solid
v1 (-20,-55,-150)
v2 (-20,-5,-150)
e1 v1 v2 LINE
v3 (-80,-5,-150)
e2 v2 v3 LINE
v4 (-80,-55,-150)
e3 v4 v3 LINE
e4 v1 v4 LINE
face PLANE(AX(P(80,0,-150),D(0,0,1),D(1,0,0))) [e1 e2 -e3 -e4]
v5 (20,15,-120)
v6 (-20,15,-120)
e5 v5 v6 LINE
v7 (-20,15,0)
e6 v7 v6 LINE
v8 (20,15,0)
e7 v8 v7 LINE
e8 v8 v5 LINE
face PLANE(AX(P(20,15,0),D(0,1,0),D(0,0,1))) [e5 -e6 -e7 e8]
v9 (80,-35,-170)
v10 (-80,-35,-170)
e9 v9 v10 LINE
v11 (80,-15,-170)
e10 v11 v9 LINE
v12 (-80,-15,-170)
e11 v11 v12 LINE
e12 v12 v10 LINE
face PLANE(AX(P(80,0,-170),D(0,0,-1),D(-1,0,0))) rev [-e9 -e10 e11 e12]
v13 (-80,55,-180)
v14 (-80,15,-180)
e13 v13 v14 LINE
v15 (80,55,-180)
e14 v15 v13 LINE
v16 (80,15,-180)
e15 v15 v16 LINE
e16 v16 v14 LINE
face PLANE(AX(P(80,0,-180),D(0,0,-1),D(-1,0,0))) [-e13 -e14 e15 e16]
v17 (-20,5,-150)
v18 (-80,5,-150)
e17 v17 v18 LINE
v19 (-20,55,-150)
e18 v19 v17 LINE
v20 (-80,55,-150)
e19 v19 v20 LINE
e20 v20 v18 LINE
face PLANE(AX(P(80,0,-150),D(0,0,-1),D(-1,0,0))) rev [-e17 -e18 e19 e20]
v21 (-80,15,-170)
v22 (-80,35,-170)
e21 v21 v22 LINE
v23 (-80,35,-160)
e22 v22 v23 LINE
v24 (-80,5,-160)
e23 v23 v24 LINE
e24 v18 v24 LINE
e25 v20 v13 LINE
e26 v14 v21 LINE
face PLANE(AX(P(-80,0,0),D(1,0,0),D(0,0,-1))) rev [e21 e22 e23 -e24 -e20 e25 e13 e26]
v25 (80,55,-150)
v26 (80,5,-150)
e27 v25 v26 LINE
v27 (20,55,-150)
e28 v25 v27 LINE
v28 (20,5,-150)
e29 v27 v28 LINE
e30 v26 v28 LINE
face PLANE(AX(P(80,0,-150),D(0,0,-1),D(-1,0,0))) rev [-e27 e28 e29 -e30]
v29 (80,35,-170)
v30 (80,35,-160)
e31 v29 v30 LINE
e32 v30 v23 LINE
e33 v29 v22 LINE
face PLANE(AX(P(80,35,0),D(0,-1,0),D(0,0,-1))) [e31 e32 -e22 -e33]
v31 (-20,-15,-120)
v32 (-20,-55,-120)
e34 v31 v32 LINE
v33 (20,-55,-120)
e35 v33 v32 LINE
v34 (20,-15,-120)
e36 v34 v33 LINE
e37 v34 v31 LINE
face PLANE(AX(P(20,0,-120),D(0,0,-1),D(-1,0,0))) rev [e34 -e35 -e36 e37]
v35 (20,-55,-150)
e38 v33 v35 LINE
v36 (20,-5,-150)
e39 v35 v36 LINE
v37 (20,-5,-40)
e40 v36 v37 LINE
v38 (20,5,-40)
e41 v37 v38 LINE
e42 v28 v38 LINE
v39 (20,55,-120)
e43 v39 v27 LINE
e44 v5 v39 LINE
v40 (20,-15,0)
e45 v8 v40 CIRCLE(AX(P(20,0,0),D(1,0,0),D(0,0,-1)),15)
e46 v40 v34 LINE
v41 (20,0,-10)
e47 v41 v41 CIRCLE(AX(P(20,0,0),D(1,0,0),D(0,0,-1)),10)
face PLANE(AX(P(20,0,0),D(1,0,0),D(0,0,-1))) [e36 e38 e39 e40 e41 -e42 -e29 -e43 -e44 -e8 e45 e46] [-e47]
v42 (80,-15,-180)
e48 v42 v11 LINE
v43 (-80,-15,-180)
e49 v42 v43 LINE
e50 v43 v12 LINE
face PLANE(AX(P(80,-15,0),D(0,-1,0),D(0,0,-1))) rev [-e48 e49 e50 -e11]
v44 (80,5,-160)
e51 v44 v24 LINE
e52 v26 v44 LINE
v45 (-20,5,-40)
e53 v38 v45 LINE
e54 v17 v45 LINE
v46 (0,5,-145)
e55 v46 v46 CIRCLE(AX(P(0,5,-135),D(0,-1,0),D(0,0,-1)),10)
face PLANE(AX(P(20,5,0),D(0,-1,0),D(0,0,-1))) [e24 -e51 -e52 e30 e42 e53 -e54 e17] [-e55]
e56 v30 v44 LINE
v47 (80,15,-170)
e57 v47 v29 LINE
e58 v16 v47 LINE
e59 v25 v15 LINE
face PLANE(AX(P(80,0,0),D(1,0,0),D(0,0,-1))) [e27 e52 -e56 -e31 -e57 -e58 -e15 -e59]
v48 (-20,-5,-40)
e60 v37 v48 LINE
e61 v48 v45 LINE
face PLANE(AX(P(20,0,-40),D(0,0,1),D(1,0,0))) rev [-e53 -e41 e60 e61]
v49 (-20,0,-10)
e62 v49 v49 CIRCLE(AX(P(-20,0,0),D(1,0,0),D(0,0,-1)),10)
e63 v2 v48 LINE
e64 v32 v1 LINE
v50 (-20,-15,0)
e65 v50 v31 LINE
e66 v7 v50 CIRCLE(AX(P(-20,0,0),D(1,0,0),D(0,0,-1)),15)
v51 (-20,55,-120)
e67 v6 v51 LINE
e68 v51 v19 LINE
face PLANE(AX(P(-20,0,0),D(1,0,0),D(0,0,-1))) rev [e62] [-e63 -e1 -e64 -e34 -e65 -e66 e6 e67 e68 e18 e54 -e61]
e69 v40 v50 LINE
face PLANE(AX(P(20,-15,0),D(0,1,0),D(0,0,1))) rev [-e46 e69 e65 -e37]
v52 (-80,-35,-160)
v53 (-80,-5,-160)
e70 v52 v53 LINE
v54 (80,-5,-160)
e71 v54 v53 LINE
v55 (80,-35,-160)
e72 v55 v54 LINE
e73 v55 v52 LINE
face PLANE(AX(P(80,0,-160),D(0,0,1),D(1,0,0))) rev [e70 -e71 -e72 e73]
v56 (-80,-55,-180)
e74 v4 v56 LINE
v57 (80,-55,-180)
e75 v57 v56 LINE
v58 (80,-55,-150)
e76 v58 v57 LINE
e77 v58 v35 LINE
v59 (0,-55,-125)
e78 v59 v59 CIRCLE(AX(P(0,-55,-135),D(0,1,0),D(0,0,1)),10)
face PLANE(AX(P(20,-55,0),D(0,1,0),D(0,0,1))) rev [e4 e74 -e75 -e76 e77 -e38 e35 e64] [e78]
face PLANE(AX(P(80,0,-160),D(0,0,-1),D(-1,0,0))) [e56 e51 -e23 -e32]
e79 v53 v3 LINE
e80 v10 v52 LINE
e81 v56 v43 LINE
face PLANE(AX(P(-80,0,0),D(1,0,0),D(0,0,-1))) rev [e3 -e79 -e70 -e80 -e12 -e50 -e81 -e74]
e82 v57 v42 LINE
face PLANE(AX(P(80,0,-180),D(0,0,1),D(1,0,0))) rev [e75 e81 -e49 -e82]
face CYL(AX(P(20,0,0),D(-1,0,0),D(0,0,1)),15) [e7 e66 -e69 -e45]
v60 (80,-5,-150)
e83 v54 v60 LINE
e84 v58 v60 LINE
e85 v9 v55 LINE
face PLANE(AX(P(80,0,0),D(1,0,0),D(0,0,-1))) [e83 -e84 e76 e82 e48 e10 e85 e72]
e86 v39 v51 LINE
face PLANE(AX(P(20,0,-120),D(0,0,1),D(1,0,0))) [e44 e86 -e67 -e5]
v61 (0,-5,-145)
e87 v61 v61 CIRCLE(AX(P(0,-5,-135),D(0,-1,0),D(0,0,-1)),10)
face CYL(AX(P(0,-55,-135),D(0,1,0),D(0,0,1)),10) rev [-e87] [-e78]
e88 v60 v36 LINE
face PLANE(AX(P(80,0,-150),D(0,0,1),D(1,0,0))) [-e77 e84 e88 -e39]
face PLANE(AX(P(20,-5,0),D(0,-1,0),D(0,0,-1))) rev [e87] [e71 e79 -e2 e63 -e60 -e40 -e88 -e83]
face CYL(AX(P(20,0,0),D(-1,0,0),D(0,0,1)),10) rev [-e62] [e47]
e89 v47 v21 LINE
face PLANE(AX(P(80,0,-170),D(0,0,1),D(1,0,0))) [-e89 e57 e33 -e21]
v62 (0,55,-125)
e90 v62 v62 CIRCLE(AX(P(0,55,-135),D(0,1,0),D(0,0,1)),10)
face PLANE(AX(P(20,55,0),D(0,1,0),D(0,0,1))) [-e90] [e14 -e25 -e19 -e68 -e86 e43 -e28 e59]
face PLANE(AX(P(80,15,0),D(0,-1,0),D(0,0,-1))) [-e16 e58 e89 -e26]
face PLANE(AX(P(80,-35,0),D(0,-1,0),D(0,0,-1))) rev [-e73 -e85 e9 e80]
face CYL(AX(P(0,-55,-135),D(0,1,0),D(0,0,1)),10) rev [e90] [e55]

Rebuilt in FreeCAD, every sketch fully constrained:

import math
import FreeCAD as App
import Part
import Sketcher
Q = App.Units.Quantity


def add_polygon(sketch, points):
    """Adds a closed chain of lines whose ends are joined by coincident constraints."""
    first, n = sketch.GeometryCount, len(points)
    for a, b in zip(points, points[1:] + points[:1]):
        sketch.addGeometry(Part.LineSegment(App.Vector(*a, 0), App.Vector(*b, 0)), False)
    for i in range(n):
        sketch.addConstraint(Sketcher.Constraint("Coincident", first + i, 2, first + (i + 1) % n, 1))

doc = App.newDocument("Part")
params = doc.addObject("Spreadsheet::Sheet", "Params")
for row, (alias, value) in enumerate([
    ("sketch1_diameter", "20 mm"),
    ("sketch1_radius", "15 mm"),
    ("sketch1_width", "40 mm"),
    ("sketch1_width2", "50 mm"),
    ("sketch1_height", "120 mm"),
    ("pad1_length", "40 mm"),
    ("sketch2_width", "50 mm"),
    ("sketch2_width2", "30 mm"),
    ("sketch2_width3", "20 mm"),
    ("pad2_length", "160 mm"),
    ("sketch3_diameter", "20 mm"),
], start=1):
    params.set(f"A{row}", alias)
    params.set(f"B{row}", "=" + value)
    params.setAlias(f"B{row}", alias)

body = doc.addObject("PartDesign::Body", "Body")

# Sketch on YZ plane
sketch1 = body.newObject("Sketcher::SketchObject", "Sketch")
sketch1.AttachmentSupport = (doc.getObject("YZ_Plane"), [""])
sketch1.MapMode = "FlatFace"
sketch1.addGeometry([
    Part.LineSegment(App.Vector(-15, 0, 0), App.Vector(-15, -120, 0)),  # 0
    Part.LineSegment(App.Vector(-15, -120, 0), App.Vector(-55, -120, 0)),  # 1
    Part.LineSegment(App.Vector(-55, -120, 0), App.Vector(-55, -150, 0)),  # 2
    Part.LineSegment(App.Vector(-55, -150, 0), App.Vector(-5, -150, 0)),  # 3
    Part.LineSegment(App.Vector(-5, -150, 0), App.Vector(-5, -40, 0)),  # 4
    Part.LineSegment(App.Vector(-5, -40, 0), App.Vector(5, -40, 0)),  # 5
    Part.LineSegment(App.Vector(5, -40, 0), App.Vector(5, -150, 0)),  # 6
    Part.LineSegment(App.Vector(5, -150, 0), App.Vector(55, -150, 0)),  # 7
    Part.LineSegment(App.Vector(55, -150, 0), App.Vector(55, -120, 0)),  # 8
    Part.LineSegment(App.Vector(55, -120, 0), App.Vector(15, -120, 0)),  # 9
    Part.LineSegment(App.Vector(15, -120, 0), App.Vector(15, 0, 0)),  # 10
    Part.ArcOfCircle(Part.Circle(App.Vector(0, 0, 0), App.Vector(0, 0, 1), 15), math.radians(0), math.radians(180)),  # 11
    Part.Circle(App.Vector(0, 0, 0), App.Vector(0, 0, 1), 10),  # 12
], False)
sketch1.addConstraint([
    Sketcher.Constraint("Coincident", 0, 2, 1, 1),
    Sketcher.Constraint("Coincident", 1, 2, 2, 1),
    Sketcher.Constraint("Coincident", 2, 2, 3, 1),
    Sketcher.Constraint("Coincident", 3, 2, 4, 1),
    Sketcher.Constraint("Coincident", 4, 2, 5, 1),
    Sketcher.Constraint("Coincident", 5, 2, 6, 1),
    Sketcher.Constraint("Coincident", 6, 2, 7, 1),
    Sketcher.Constraint("Coincident", 7, 2, 8, 1),
    Sketcher.Constraint("Coincident", 8, 2, 9, 1),
    Sketcher.Constraint("Coincident", 9, 2, 10, 1),
    Sketcher.Constraint("Tangent", 10, 2, 11, 1),
    Sketcher.Constraint("Tangent", 11, 2, 0, 1),
    Sketcher.Constraint("Vertical", 0),
    Sketcher.Constraint("Horizontal", 1),
    Sketcher.Constraint("Vertical", 2),
    Sketcher.Constraint("Horizontal", 3),
    Sketcher.Constraint("Vertical", 4),
    Sketcher.Constraint("Horizontal", 5),
    Sketcher.Constraint("Vertical", 6),
    Sketcher.Constraint("Horizontal", 7),
    Sketcher.Constraint("Vertical", 8),
    Sketcher.Constraint("Horizontal", 9),
    Sketcher.Constraint("Vertical", 10),
    Sketcher.Constraint("Coincident", 11, 3, -1, 1),
    Sketcher.Constraint("Coincident", 12, 3, -1, 1),
    Sketcher.Constraint("Symmetric", 3, 2, 6, 2, -2),
    Sketcher.Constraint("Symmetric", 1, 2, 8, 2, -2),
    Sketcher.Constraint("Diameter", 12, Q("20 mm")),
    Sketcher.Constraint("Radius", 11, Q("15 mm")),
    Sketcher.Constraint("DistanceX", 1, 2, 1, 1, Q("40 mm")),
    Sketcher.Constraint("DistanceX", 3, 1, 3, 2, Q("50 mm")),
    Sketcher.Constraint("DistanceY", 0, 2, 0, 1, Q("120 mm")),
    Sketcher.Constraint("DistanceY", 2, 2, 2, 1, Q("30 mm")),
    Sketcher.Constraint("DistanceY", 4, 1, 4, 2, Q("110 mm")),
])
sketch1.setExpression("Constraints[27]", "Params.sketch1_diameter")
sketch1.setExpression("Constraints[28]", "Params.sketch1_radius")
sketch1.setExpression("Constraints[29]", "Params.sketch1_width")
sketch1.setExpression("Constraints[30]", "Params.sketch1_width2")
sketch1.setExpression("Constraints[31]", "Params.sketch1_height")
pad1 = body.newObject("PartDesign::Pad", "Pad")
pad1.Profile = sketch1
pad1.setExpression("Length", "Params.pad1_length")
pad1.Midplane = True

# Sketch on YZ plane
sketch2 = body.newObject("Sketcher::SketchObject", "Sketch001")
sketch2.AttachmentSupport = (doc.getObject("YZ_Plane"), [""])
sketch2.MapMode = "FlatFace"
add_polygon(sketch2, [(55, -150), (5, -150), (5, -160), (35, -160), (35, -170), (15, -170), (15, -180), (55, -180)])  # lines 0-7
add_polygon(sketch2, [(-35, -160), (-5, -160), (-5, -150), (-55, -150), (-55, -180), (-15, -180), (-15, -170), (-35, -170)])  # lines 8-15
sketch2.addConstraint([
    Sketcher.Constraint("Horizontal", 0),
    Sketcher.Constraint("Vertical", 1),
    Sketcher.Constraint("Horizontal", 2),
    Sketcher.Constraint("Vertical", 3),
    Sketcher.Constraint("Horizontal", 4),
    Sketcher.Constraint("Vertical", 5),
    Sketcher.Constraint("Horizontal", 6),
    Sketcher.Constraint("Vertical", 7),
    Sketcher.Constraint("Horizontal", 8),
    Sketcher.Constraint("Vertical", 9),
    Sketcher.Constraint("Horizontal", 10),
    Sketcher.Constraint("Vertical", 11),
    Sketcher.Constraint("Horizontal", 12),
    Sketcher.Constraint("Vertical", 13),
    Sketcher.Constraint("Horizontal", 14),
    Sketcher.Constraint("Vertical", 15),
    Sketcher.Constraint("Symmetric", 1, 2, 8, 2, -2),
    Sketcher.Constraint("Symmetric", 7, 2, 10, 2, -2),
    Sketcher.Constraint("Symmetric", 5, 2, 12, 2, -2),
    Sketcher.Constraint("Symmetric", 3, 2, 14, 2, -2),
    Sketcher.Constraint("Equal", 1, 3),
    Sketcher.Constraint("Equal", 3, 5),
    Sketcher.Constraint("Equal", 8, 7),
    Sketcher.Constraint("DistanceX", 0, 2, 0, 1, Q("50 mm")),
    Sketcher.Constraint("DistanceX", 2, 1, 2, 2, Q("30 mm")),
    Sketcher.Constraint("DistanceX", 4, 2, 4, 1, Q("20 mm")),
    Sketcher.Constraint("DistanceX", -1, 1, 0, 2, Q("5 mm")),
    Sketcher.Constraint("DistanceY", 0, 2, -1, 1, Q("150 mm")),
])
sketch2.setExpression("Constraints[39]", "Params.sketch2_width")
sketch2.setExpression("Constraints[40]", "Params.sketch2_width2")
sketch2.setExpression("Constraints[41]", "Params.sketch2_width3")
pad2 = body.newObject("PartDesign::Pad", "Pad001")
pad2.Profile = sketch2
pad2.setExpression("Length", "Params.pad2_length")
pad2.Midplane = True

# Sketch on XZ plane
sketch3 = body.newObject("Sketcher::SketchObject", "Sketch002")
sketch3.AttachmentSupport = (doc.getObject("XZ_Plane"), [""])
sketch3.MapMode = "FlatFace"
sketch3.AttachmentOffset = App.Placement(App.Vector(0, 0, -55), App.Rotation())
sketch3.addGeometry(Part.Circle(App.Vector(0, -135, 0), App.Vector(0, 0, 1), 10), False)
sketch3.addConstraint([
    Sketcher.Constraint("PointOnObject", 0, 3, -2),
    Sketcher.Constraint("Diameter", 0, Q("20 mm")),
    Sketcher.Constraint("DistanceY", 0, 3, -1, 1, Q("135 mm")),
])
sketch3.setExpression("Constraints[1]", "Params.sketch3_diameter")
pocket1 = body.newObject("PartDesign::Pocket", "Pocket")
pocket1.Profile = sketch3
pocket1.Type = "ThroughAll"
pocket1.Midplane = True

doc.recompute()
